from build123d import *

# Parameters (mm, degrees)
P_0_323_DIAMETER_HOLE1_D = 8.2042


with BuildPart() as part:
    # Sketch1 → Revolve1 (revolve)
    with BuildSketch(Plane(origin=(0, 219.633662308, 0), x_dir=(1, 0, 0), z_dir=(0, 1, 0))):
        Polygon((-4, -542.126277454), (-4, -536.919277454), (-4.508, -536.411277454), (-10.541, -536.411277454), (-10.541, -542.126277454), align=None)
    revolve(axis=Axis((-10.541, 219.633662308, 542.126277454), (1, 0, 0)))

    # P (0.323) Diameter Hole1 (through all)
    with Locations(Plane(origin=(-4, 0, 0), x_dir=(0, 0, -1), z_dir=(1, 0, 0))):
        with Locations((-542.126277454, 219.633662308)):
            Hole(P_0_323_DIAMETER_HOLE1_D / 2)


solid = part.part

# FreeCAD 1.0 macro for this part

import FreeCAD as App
import Part
import Sketcher
from FreeCAD import Vector
Q = App.Units.Quantity


def add_polygon(sketch, points):
    """Adds a closed chain of lines whose ends are joined by coincident constraints."""
    first, n = sketch.GeometryCount, len(points)
    for a, b in zip(points, points[1:] + points[:1]):
        sketch.addGeometry(Part.LineSegment(App.Vector(*a, 0), App.Vector(*b, 0)), False)
    for i in range(n):
        sketch.addConstraint(Sketcher.Constraint("Coincident", first + i, 2, first + (i + 1) % n, 1))

doc = App.newDocument("Part")
body = doc.addObject("PartDesign::Body", "Body")

# Sketch on XZ plane
sketch1 = body.newObject("Sketcher::SketchObject", "Sketch")
sketch1.AttachmentSupport = (doc.getObject("XZ_Plane"), [""])
sketch1.MapMode = "FlatFace"
sketch1.AttachmentOffset = App.Placement(Vector(0, 0, -219.633662), App.Rotation())
add_polygon(sketch1, [(-4, 542.1), (-4, 536.9), (-4.5, 536.4), (-10.5, 536.4), (-10.5, 542.1)])  # lines 0-4
sketch1.addGeometry(Part.LineSegment(Vector(-10.5, 542.1, 0), Vector(-4, 542.1, 0)), True)  # axis
sketch1.addConstraint(Sketcher.Constraint("Vertical", 0))
sketch1.addConstraint(Sketcher.Constraint("Horizontal", 2))
sketch1.addConstraint(Sketcher.Constraint("Vertical", 3))
sketch1.addConstraint(Sketcher.Constraint("Horizontal", 4))
sketch1.addConstraint(Sketcher.Constraint("Horizontal", 5))
sketch1.addConstraint(Sketcher.Constraint("Coincident", 5, 1, 3, 2))
sketch1.addConstraint(Sketcher.Constraint("Vertical", 0, 2, 5, 2))
sketch1.addConstraint(Sketcher.Constraint("Angle", 1, Q("-135 deg")))
sketch1.addConstraint(Sketcher.Constraint("DistanceY", 0, 2, 0, 1, Q("0.205 in")))
sketch1.addConstraint(Sketcher.Constraint("DistanceY", 3, 1, 3, 2, Q("0.225 in")))
sketch1.addConstraint(Sketcher.Constraint("DistanceX", 2, 2, -1, 1, Q("0.415 in")))
sketch1.addConstraint(Sketcher.Constraint("DistanceX", 2, 2, 2, 1, 6.033))
sketch1.addConstraint(Sketcher.Constraint("DistanceY", -1, 1, 0, 2, 536.919277))
revolution = body.newObject("PartDesign::Revolution", "Revolution")
revolution.Profile = sketch1
revolution.ReferenceAxis = (sketch1, ["Axis0"])
revolution.Angle = 360

# Sketch on YZ plane
sketch2 = body.newObject("Sketcher::SketchObject", "Sketch001")
sketch2.AttachmentSupport = (doc.getObject("YZ_Plane"), [""])
sketch2.MapMode = "FlatFace"
sketch2.AttachmentOffset = App.Placement(Vector(0, 0, -4), App.Rotation())
sketch2.addGeometry(Part.Circle(Vector(219.6, 542.1, 0), Vector(0, 0, 1), 4.1), False)
sketch2.addConstraint(Sketcher.Constraint("Diameter", 0, Q("0.323 in")))
sketch2.addConstraint(Sketcher.Constraint("DistanceX", -1, 1, 0, 3, 219.633662))
sketch2.addConstraint(Sketcher.Constraint("DistanceY", -1, 1, 0, 3, 542.126277))
doc.recompute()
hole = body.newObject("PartDesign::Hole", "Hole")
hole.Profile = sketch2
hole.ThreadType = "None"
hole.Diameter = Q("0.323 in")
hole.DepthType = "ThroughAll"

doc.recompute()
